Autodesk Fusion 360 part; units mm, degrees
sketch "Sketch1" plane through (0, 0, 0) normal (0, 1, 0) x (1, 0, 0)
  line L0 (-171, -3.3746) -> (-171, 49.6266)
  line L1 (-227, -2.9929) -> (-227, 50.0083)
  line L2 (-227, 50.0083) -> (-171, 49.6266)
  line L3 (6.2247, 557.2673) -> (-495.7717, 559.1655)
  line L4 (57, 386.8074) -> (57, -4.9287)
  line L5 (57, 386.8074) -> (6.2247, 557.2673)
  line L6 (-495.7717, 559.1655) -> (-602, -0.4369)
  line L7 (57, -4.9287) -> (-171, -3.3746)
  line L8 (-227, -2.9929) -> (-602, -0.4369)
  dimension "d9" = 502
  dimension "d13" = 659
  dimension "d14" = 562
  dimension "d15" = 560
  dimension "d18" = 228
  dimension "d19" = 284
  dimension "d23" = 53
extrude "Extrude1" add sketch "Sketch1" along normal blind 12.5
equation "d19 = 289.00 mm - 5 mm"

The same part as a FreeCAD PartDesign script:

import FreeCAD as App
import Part
import Sketcher
Q = App.Units.Quantity


def add_polygon(sketch, points):
    """Adds a closed chain of lines whose ends are joined by coincident constraints."""
    first, n = sketch.GeometryCount, len(points)
    for a, b in zip(points, points[1:] + points[:1]):
        sketch.addGeometry(Part.LineSegment(App.Vector(*a, 0), App.Vector(*b, 0)), False)
    for i in range(n):
        sketch.addConstraint(Sketcher.Constraint("Coincident", first + i, 2, first + (i + 1) % n, 1))

doc = App.newDocument("Part")
body = doc.addObject("PartDesign::Body", "Body")

# Sketch on XZ plane
sketch1 = body.newObject("Sketcher::SketchObject", "Sketch")
sketch1.AttachmentSupport = (doc.getObject("XZ_Plane"), [""])
sketch1.MapMode = "FlatFace"
add_polygon(sketch1, [(-171, -50), (-171, 3), (57, 5), (57, -387), (6, -557), (-496, -559), (-602, 0), (-227, 3), (-227, -50)])  # lines 0-8
sketch1.addConstraint(Sketcher.Constraint("Vertical", 0))
sketch1.addConstraint(Sketcher.Constraint("Vertical", 2))
sketch1.addConstraint(Sketcher.Constraint("Vertical", 7))
sketch1.addConstraint(Sketcher.Constraint("Parallel", 1, 6))
sketch1.addConstraint(Sketcher.Constraint("Parallel", 6, 8))
sketch1.addConstraint(Sketcher.Constraint("Equal", 0, 7))
sketch1.addConstraint(Sketcher.Constraint("Distance", 4, 502.0))
sketch1.addConstraint(Sketcher.Constraint("DistanceX", 0, 2, 1, 2, 228.0))
sketch1.addConstraint(Sketcher.Constraint("DistanceX", 5, 2, 1, 2, 659.0))
sketch1.addConstraint(Sketcher.Constraint("DistanceX", 6, 2, 1, 2, 284.0))
sketch1.addConstraint(Sketcher.Constraint("DistanceX", 0, 2, -1, 1, 171.0))
sketch1.addConstraint(Sketcher.Constraint("Angle", 1, Q("0.3905 deg")))
sketch1.addConstraint(Sketcher.Constraint("DistanceY", 2, 2, 2, 1, 391.736))
sketch1.addConstraint(Sketcher.Constraint("DistanceY", 3, 2, 2, 2, 170.46))
sketch1.addConstraint(Sketcher.Constraint("DistanceY", 4, 2, 0, 2, 562.54))
sketch1.addConstraint(Sketcher.Constraint("DistanceY", 0, 1, 0, 2, 53.0012))
sketch1.addConstraint(Sketcher.Constraint("DistanceY", -1, 1, 5, 2, 0.437))
sketch1.addConstraint(Sketcher.Constraint("Distance", 3, 177.8615))
pad1 = body.newObject("PartDesign::Pad", "Pad")
pad1.Profile = sketch1
pad1.Length = 12.5
pad1.Reversed = True

doc.recompute()
